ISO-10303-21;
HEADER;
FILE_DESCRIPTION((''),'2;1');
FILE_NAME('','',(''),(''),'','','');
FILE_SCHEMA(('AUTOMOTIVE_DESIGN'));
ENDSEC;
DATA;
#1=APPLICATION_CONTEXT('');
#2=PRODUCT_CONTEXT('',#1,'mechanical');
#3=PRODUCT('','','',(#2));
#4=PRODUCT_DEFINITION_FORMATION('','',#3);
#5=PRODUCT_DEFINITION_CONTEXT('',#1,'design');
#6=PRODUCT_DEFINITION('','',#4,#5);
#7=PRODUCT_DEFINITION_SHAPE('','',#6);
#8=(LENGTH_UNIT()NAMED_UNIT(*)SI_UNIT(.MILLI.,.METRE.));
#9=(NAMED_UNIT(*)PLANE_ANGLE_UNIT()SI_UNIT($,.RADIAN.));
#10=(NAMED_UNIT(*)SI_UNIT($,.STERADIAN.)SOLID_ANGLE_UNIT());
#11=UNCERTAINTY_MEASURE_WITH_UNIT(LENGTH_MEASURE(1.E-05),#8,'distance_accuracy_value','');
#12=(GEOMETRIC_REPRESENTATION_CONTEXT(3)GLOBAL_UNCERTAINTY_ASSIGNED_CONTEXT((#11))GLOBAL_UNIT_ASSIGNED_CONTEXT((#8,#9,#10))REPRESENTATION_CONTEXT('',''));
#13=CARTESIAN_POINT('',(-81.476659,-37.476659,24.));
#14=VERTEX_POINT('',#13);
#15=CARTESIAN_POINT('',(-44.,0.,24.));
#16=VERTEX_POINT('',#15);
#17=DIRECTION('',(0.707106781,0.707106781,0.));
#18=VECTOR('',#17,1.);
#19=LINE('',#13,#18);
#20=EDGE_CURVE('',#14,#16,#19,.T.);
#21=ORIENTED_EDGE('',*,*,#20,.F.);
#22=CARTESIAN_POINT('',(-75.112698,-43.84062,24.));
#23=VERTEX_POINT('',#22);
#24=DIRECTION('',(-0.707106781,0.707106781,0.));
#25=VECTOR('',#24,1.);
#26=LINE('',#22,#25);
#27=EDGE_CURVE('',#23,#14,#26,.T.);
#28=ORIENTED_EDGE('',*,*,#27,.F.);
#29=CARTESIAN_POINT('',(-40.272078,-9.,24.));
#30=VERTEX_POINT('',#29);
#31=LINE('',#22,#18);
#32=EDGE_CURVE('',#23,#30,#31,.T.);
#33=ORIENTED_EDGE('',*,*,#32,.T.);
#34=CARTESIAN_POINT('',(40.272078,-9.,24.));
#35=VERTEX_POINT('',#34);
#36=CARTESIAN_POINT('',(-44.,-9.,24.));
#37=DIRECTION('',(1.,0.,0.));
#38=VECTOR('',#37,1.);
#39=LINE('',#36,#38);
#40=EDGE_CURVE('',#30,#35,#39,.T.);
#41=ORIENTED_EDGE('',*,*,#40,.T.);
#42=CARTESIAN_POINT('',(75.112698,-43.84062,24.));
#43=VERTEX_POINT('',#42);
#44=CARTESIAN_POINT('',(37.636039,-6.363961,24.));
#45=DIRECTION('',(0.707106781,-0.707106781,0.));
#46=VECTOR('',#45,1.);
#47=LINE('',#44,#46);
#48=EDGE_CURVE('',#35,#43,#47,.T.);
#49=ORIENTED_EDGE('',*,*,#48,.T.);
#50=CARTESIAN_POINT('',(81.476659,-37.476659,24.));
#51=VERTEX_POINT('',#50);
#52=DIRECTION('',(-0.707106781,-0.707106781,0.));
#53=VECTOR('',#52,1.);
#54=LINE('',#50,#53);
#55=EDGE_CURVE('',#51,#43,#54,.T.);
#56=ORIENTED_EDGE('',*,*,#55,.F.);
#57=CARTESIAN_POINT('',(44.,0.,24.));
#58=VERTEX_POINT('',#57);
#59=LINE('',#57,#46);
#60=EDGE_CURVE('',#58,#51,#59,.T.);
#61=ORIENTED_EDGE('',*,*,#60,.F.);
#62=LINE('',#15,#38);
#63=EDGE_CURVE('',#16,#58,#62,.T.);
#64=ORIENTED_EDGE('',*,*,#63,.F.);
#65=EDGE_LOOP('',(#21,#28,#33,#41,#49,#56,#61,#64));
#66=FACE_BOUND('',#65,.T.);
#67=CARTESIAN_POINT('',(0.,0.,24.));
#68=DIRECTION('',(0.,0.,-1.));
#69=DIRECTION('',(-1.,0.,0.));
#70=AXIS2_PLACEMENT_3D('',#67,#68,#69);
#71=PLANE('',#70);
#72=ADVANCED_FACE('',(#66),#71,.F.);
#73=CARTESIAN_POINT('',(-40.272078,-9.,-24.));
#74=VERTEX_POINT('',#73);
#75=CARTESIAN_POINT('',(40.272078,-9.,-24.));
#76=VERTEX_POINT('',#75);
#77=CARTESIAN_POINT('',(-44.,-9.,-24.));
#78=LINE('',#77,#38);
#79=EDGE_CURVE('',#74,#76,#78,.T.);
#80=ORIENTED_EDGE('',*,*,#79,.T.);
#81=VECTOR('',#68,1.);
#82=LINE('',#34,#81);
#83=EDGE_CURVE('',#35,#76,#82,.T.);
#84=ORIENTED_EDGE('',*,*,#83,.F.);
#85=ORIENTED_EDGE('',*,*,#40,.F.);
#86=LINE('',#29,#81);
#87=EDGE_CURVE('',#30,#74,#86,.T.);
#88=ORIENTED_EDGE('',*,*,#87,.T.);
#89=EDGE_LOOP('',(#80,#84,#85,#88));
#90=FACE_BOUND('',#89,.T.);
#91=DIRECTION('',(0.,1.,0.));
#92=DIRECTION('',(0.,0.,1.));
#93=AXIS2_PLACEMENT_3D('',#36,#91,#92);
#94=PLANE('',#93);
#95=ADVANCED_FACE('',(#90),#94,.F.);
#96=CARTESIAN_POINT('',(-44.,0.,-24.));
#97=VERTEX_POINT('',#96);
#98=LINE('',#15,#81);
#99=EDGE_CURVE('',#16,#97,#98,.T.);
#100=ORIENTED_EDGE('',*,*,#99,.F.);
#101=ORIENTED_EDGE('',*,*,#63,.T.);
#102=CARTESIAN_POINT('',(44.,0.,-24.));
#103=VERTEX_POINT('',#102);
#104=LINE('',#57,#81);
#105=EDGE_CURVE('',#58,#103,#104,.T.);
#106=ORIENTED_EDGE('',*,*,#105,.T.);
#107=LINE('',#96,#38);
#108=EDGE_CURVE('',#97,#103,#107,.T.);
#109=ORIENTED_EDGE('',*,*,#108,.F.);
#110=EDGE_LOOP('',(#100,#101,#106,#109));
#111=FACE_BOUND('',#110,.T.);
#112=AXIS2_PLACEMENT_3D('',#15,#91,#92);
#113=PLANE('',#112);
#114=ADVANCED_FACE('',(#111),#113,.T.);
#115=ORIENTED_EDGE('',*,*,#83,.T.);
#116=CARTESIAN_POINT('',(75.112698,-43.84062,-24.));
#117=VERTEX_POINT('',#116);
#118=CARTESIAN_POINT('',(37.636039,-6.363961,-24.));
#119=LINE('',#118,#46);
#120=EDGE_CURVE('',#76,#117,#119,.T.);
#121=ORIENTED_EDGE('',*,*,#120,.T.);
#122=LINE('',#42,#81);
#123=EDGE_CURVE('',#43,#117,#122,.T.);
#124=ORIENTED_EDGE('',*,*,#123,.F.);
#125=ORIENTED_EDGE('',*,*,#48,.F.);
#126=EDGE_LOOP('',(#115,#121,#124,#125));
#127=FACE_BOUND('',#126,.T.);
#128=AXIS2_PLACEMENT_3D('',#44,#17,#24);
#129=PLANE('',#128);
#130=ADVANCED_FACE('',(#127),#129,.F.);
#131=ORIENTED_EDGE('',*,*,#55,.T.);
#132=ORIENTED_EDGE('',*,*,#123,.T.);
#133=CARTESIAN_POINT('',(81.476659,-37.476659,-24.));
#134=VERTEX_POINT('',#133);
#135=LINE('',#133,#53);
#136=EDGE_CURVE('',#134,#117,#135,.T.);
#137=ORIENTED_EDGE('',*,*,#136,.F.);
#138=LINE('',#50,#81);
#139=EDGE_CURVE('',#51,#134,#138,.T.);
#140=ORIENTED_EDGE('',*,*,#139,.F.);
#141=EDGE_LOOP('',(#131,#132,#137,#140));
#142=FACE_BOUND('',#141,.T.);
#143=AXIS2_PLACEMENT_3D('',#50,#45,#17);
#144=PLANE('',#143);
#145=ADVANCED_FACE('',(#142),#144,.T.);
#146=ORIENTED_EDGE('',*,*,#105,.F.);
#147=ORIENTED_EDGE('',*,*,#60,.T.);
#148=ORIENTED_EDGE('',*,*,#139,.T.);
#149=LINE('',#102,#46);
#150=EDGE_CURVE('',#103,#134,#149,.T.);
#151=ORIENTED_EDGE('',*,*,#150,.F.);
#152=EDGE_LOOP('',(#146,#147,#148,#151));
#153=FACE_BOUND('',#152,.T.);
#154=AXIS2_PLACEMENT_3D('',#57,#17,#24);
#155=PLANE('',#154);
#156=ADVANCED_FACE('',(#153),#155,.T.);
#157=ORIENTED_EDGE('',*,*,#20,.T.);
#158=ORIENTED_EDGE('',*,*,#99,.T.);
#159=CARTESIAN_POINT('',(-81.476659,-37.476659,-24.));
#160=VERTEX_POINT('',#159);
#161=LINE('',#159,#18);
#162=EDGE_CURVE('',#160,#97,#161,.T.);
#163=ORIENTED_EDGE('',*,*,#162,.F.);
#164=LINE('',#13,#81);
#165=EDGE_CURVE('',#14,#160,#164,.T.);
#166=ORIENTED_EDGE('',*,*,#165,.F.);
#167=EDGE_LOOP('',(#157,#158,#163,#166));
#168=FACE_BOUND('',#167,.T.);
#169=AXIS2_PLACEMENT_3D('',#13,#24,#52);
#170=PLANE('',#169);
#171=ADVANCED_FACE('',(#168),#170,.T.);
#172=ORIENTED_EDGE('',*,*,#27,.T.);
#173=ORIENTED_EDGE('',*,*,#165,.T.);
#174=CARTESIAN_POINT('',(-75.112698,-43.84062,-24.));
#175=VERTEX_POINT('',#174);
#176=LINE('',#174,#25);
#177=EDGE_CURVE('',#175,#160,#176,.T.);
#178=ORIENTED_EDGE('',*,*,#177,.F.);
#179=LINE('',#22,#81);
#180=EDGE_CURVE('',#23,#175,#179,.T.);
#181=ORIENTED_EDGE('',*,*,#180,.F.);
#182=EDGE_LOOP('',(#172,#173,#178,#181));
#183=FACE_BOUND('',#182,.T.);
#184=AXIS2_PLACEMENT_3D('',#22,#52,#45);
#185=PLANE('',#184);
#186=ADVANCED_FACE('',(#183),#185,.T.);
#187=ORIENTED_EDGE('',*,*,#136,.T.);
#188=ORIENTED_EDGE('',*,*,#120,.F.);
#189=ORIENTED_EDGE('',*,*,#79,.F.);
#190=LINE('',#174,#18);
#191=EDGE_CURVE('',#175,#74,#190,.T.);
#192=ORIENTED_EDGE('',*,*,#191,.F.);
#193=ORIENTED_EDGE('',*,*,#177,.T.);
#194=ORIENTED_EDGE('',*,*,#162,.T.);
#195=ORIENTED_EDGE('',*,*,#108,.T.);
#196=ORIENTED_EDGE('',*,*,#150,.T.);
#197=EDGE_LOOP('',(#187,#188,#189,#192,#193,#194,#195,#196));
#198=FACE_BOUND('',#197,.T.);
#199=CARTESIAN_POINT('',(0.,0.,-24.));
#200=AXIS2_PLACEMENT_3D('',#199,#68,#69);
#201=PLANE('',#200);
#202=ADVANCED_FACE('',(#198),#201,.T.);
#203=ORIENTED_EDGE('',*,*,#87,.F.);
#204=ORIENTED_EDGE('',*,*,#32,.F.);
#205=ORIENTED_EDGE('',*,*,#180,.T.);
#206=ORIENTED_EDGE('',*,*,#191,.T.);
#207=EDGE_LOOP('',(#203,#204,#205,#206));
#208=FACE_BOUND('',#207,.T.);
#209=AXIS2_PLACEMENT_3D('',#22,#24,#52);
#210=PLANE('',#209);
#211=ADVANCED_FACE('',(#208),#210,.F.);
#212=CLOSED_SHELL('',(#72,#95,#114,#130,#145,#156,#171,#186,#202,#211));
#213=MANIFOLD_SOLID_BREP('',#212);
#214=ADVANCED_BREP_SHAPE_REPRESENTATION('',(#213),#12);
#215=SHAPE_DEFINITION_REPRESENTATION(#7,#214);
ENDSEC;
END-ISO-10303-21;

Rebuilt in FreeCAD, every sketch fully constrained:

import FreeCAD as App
import Part
import Sketcher


def add_polygon(sketch, points):
    """Adds a closed chain of lines whose ends are joined by coincident constraints."""
    first, n = sketch.GeometryCount, len(points)
    for a, b in zip(points, points[1:] + points[:1]):
        sketch.addGeometry(Part.LineSegment(App.Vector(*a, 0), App.Vector(*b, 0)), False)
    for i in range(n):
        sketch.addConstraint(Sketcher.Constraint("Coincident", first + i, 2, first + (i + 1) % n, 1))

doc = App.newDocument("Part")
body = doc.addObject("PartDesign::Body", "Body")

# Sketch on XY plane
sketch1 = body.newObject("Sketcher::SketchObject", "Sketch")
sketch1.AttachmentSupport = (doc.getObject("XY_Plane"), [""])
sketch1.MapMode = "FlatFace"
add_polygon(sketch1, [(-44, 0), (-81.476659, -37.476659), (-75.112698, -43.84062), (-40.272078, -9), (40.272078, -9), (75.112698, -43.84062), (81.476659, -37.476659), (44, 0)])  # lines 0-7
sketch1.addConstraint(Sketcher.Constraint("Horizontal", 3))
sketch1.addConstraint(Sketcher.Constraint("Horizontal", 7))
sketch1.addConstraint(Sketcher.Constraint("Symmetric", 6, 2, 7, 2, -1, 1))
sketch1.addConstraint(Sketcher.Constraint("Symmetric", 1, 2, 4, 2, -2))
sketch1.addConstraint(Sketcher.Constraint("Symmetric", 0, 2, 5, 2, -2))
sketch1.addConstraint(Sketcher.Constraint("Perpendicular", 0, 1))
sketch1.addConstraint(Sketcher.Constraint("Perpendicular", 1, 2))
sketch1.addConstraint(Sketcher.Constraint("Perpendicular", 2, 4))
sketch1.addConstraint(Sketcher.Constraint("Perpendicular", 4, 5))
sketch1.addConstraint(Sketcher.Constraint("DistanceX", 7, 2, 7, 1, 88.0))
sketch1.addConstraint(Sketcher.Constraint("Distance", 0, 53.0))
sketch1.addConstraint(Sketcher.Constraint("Distance", 1, 9.0))
sketch1.addConstraint(Sketcher.Constraint("DistanceY", 2, 2, -1, 1, 9.0))
pad1 = body.newObject("PartDesign::Pad", "Pad")
pad1.Profile = sketch1
pad1.Length = 48
pad1.Midplane = True

doc.recompute()
